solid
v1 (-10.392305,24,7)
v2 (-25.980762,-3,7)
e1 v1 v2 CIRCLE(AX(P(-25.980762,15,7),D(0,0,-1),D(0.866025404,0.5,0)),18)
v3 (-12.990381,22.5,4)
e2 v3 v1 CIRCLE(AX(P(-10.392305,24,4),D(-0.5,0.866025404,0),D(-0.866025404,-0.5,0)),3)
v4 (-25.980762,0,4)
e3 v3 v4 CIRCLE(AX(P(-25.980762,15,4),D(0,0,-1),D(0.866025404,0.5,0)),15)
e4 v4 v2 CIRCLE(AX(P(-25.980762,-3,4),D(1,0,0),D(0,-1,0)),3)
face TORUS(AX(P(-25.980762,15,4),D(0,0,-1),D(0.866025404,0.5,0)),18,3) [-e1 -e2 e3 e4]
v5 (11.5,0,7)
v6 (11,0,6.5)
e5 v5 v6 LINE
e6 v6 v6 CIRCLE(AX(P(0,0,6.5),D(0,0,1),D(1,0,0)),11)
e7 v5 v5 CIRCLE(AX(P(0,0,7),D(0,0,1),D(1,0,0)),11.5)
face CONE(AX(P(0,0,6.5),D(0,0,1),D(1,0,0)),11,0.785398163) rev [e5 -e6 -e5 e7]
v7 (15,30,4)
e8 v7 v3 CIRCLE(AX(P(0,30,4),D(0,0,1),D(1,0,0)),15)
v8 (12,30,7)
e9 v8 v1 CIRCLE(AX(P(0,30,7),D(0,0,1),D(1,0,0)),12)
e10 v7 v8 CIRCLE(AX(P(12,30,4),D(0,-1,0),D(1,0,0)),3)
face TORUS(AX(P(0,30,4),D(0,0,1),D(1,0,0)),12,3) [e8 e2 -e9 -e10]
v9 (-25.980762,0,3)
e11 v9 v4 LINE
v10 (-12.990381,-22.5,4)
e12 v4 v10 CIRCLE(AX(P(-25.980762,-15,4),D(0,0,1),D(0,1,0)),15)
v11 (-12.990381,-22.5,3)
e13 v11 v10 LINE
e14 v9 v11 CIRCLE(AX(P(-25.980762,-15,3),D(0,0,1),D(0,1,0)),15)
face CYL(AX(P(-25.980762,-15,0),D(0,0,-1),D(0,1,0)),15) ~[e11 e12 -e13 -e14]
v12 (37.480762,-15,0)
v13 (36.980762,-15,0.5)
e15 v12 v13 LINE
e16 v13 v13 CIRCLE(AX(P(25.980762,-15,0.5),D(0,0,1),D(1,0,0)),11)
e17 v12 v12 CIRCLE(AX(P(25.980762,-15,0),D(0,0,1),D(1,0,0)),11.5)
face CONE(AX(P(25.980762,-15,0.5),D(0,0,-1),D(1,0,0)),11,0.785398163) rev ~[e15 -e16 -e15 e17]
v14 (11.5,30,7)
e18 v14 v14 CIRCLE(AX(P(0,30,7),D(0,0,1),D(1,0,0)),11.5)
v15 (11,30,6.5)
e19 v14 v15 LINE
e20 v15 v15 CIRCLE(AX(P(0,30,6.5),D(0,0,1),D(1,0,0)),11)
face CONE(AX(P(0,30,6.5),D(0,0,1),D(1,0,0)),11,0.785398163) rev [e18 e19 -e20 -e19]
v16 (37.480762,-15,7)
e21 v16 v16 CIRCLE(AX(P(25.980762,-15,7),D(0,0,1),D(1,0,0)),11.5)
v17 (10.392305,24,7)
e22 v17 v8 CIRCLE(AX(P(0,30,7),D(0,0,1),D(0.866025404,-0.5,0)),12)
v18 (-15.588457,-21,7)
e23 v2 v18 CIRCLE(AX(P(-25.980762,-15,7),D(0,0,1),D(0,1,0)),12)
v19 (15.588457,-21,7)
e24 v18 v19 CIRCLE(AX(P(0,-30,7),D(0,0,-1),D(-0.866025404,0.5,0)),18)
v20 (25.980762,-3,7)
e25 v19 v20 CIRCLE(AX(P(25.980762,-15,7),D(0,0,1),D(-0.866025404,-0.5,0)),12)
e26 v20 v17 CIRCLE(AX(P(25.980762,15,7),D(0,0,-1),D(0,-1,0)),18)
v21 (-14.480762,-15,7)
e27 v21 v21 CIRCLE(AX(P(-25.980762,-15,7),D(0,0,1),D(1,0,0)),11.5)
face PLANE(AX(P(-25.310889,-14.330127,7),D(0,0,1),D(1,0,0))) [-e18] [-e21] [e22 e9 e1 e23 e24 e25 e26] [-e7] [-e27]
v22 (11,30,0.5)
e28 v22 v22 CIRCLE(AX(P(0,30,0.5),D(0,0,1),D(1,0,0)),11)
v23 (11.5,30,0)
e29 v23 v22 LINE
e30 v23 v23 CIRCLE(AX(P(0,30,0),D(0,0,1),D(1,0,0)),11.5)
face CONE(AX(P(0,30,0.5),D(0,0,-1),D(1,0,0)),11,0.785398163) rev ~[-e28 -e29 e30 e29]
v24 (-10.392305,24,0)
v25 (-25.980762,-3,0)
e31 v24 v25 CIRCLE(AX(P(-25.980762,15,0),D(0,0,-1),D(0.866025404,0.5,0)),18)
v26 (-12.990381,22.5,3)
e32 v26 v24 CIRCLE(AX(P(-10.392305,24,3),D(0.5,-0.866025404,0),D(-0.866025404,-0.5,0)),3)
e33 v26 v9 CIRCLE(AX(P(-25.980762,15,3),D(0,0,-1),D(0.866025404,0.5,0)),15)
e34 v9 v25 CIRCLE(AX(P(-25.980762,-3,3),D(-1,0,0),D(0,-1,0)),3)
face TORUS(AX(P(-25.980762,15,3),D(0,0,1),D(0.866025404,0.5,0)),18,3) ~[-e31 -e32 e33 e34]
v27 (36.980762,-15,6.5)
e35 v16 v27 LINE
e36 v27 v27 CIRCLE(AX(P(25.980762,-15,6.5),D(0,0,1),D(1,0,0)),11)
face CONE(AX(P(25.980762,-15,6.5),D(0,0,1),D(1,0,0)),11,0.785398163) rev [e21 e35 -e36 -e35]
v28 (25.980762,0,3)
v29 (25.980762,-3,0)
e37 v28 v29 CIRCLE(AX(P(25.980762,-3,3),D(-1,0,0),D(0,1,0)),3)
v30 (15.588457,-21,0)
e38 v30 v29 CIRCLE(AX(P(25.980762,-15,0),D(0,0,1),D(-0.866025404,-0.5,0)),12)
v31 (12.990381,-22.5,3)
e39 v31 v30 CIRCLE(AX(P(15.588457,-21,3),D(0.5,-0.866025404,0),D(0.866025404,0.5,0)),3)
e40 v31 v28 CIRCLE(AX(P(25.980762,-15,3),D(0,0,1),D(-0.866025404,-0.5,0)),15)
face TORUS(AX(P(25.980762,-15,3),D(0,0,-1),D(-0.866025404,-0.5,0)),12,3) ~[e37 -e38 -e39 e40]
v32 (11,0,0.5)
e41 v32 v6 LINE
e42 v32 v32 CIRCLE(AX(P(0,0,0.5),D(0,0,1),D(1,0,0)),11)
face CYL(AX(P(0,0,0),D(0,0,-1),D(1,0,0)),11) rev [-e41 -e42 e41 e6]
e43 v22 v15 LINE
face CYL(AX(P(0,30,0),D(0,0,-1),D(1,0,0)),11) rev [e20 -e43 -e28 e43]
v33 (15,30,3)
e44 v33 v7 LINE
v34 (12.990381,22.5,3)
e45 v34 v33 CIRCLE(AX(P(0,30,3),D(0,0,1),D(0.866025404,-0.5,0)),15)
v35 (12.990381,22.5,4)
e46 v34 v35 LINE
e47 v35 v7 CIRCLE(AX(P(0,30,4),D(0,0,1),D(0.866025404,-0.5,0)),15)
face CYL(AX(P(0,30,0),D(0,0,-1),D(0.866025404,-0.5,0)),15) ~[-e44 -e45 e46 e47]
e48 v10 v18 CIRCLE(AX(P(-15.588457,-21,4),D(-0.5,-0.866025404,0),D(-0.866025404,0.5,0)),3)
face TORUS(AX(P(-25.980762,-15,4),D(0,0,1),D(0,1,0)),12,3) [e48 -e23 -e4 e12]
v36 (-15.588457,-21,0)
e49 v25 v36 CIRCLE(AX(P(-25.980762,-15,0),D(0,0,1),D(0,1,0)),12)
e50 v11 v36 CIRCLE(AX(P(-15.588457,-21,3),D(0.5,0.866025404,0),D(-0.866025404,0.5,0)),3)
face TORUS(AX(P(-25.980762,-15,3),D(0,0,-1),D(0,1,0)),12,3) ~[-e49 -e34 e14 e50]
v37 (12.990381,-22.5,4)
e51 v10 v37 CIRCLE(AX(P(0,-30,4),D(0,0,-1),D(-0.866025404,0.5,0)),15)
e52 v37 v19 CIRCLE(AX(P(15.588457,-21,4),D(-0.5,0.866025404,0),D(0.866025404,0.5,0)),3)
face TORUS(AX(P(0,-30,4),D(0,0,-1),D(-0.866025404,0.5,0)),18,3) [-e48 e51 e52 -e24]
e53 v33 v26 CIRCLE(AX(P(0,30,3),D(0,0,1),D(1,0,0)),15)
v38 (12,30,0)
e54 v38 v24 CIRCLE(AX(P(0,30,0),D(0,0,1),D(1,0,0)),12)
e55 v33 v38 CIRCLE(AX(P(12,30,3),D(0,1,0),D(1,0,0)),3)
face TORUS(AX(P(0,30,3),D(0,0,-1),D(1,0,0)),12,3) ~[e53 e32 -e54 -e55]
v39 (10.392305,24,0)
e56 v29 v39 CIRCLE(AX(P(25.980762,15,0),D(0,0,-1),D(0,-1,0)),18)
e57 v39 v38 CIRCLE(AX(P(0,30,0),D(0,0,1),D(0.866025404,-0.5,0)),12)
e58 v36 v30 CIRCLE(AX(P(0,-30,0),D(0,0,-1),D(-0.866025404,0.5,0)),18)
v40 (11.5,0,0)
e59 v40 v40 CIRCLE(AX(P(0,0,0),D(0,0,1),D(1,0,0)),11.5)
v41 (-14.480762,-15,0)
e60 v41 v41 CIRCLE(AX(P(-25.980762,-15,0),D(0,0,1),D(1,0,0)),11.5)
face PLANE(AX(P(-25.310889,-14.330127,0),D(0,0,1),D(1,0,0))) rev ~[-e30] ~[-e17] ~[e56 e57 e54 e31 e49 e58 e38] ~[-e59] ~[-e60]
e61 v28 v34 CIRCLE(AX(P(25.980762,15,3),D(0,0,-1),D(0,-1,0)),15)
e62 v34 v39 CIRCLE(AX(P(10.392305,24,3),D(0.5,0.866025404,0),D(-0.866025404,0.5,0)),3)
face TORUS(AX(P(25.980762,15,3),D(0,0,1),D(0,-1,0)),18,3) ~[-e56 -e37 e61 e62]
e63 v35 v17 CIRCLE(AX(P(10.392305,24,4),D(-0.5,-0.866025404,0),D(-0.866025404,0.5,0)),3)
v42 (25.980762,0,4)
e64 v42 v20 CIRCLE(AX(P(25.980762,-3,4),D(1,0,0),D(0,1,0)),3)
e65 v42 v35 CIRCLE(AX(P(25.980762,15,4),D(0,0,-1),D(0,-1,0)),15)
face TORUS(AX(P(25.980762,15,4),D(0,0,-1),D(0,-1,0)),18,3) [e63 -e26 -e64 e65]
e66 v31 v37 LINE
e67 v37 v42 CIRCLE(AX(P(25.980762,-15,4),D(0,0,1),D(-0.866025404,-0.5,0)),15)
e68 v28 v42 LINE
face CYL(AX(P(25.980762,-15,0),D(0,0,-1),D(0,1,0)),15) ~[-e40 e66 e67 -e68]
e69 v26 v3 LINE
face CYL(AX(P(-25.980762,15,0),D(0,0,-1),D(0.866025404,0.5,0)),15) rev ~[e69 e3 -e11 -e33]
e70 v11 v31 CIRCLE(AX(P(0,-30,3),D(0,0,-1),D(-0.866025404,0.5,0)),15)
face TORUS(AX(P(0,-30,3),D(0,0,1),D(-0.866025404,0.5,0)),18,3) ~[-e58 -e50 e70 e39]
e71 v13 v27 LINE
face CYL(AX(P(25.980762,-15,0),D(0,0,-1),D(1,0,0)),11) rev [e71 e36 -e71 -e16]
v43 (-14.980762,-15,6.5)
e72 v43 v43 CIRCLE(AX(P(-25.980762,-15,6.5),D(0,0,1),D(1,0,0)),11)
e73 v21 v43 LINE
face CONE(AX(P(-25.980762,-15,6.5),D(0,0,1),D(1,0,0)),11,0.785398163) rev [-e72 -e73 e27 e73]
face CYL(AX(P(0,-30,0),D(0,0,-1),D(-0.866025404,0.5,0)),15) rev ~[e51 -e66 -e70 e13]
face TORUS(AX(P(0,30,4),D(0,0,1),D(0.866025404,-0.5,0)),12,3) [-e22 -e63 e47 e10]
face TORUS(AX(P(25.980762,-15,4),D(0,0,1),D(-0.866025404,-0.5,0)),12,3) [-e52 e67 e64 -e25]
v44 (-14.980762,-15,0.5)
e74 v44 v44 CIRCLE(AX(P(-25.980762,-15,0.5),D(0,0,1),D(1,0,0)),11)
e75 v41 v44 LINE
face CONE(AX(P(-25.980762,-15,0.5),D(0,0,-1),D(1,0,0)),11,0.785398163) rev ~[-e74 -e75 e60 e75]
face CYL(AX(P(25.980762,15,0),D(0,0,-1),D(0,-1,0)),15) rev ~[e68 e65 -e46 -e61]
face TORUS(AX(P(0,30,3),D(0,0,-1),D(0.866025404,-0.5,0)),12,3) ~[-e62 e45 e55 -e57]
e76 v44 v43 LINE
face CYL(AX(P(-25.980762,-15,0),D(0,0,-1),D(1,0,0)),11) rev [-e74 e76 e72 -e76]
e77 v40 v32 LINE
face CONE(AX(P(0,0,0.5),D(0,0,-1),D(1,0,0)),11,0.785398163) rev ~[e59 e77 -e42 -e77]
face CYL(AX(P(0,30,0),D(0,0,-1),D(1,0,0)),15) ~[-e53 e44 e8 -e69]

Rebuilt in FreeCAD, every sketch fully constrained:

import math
import FreeCAD as App
import Part
import Sketcher
Q = App.Units.Quantity


def edges_at(feature, points):
    """Names of the edges that pass closest to the given points."""
    edges = feature.Shape.Edges
    near = lambda p: min(range(len(edges)), key=lambda i: edges[i].distToShape(Part.Vertex(*p))[0])
    return sorted({f"Edge{near(p) + 1}" for p in points})

doc = App.newDocument("Part")
params = doc.addObject("Spreadsheet::Sheet", "Params")
for row, (alias, value) in enumerate([
    ("sketch1_diameter", "22 mm"),
    ("sketch1_radius", "15 mm"),
    ("pad1_length", "7 mm"),
    ("fillet_radius", "3 mm"),
    ("chamfer_size", "0.5 mm"),
], start=1):
    params.set(f"A{row}", alias)
    params.set(f"B{row}", "=" + value)
    params.setAlias(f"B{row}", alias)

body = doc.addObject("PartDesign::Body", "Body")

sketch1 = body.newObject("Sketcher::SketchObject", "Sketch")
sketch1.AttachmentSupport = (doc.getObject("XY_Plane"), [""])
sketch1.MapMode = "FlatFace"
sketch1.addGeometry(Part.ArcOfCircle(Part.Circle(App.Vector(-26, -15, 0), App.Vector(0, 0, 1), 15), math.radians(90), math.radians(330)), False)
sketch1.addGeometry(Part.ArcOfCircle(Part.Circle(App.Vector(0, -30, 0), App.Vector(0, 0, 1), 15), math.radians(30), math.radians(150)), False)
sketch1.addGeometry(Part.ArcOfCircle(Part.Circle(App.Vector(26, -15, 0), App.Vector(0, 0, 1), 15), math.radians(-150), math.radians(90)), False)
sketch1.addGeometry(Part.ArcOfCircle(Part.Circle(App.Vector(26, 15, 0), App.Vector(0, 0, 1), 15), math.radians(150), math.radians(270)), False)
sketch1.addGeometry(Part.ArcOfCircle(Part.Circle(App.Vector(0, 30, 0), App.Vector(0, 0, 1), 15), math.radians(-30), math.radians(0)), False)
sketch1.addGeometry(Part.ArcOfCircle(Part.Circle(App.Vector(0, 30, 0), App.Vector(0, 0, 1), 15), math.radians(0), math.radians(210)), False)
sketch1.addGeometry(Part.ArcOfCircle(Part.Circle(App.Vector(-26, 15, 0), App.Vector(0, 0, 1), 15), math.radians(-90), math.radians(30)), False)
sketch1.addGeometry(Part.Circle(App.Vector(-26, -15, 0), App.Vector(0, 0, 1), 11), False)
sketch1.addGeometry(Part.Circle(App.Vector(26, -15, 0), App.Vector(0, 0, 1), 11), False)
sketch1.addGeometry(Part.Circle(App.Vector(0, 0, 0), App.Vector(0, 0, 1), 11), False)
sketch1.addGeometry(Part.Circle(App.Vector(0, 30, 0), App.Vector(0, 0, 1), 11), False)
sketch1.addConstraint(Sketcher.Constraint("Tangent", 0, 2, 1, 2))
sketch1.addConstraint(Sketcher.Constraint("Tangent", 1, 1, 2, 1))
sketch1.addConstraint(Sketcher.Constraint("Tangent", 2, 2, 3, 2))
sketch1.addConstraint(Sketcher.Constraint("Tangent", 3, 1, 4, 1))
sketch1.addConstraint(Sketcher.Constraint("Tangent", 4, 2, 5, 1))
sketch1.addConstraint(Sketcher.Constraint("Tangent", 5, 2, 6, 2))
sketch1.addConstraint(Sketcher.Constraint("Tangent", 6, 1, 0, 1))
sketch1.addConstraint(Sketcher.Constraint("Coincident", 9, 3, -1, 1))
sketch1.addConstraint(Sketcher.Constraint("Coincident", 7, 3, 0, 3))
sketch1.addConstraint(Sketcher.Constraint("Coincident", 8, 3, 2, 3))
sketch1.addConstraint(Sketcher.Constraint("Coincident", 10, 3, 4, 3))
sketch1.addConstraint(Sketcher.Constraint("Equal", 0, 1))
sketch1.addConstraint(Sketcher.Constraint("Equal", 1, 2))
sketch1.addConstraint(Sketcher.Constraint("Equal", 2, 3))
sketch1.addConstraint(Sketcher.Constraint("Equal", 3, 4))
sketch1.addConstraint(Sketcher.Constraint("Equal", 4, 5))
sketch1.addConstraint(Sketcher.Constraint("Equal", 5, 6))
sketch1.addConstraint(Sketcher.Constraint("Equal", 7, 8))
sketch1.addConstraint(Sketcher.Constraint("Equal", 8, 9))
sketch1.addConstraint(Sketcher.Constraint("Equal", 9, 10))
sketch1.addConstraint(Sketcher.Constraint("Symmetric", 0, 3, 3, 3, -1, 1))
sketch1.addConstraint(Sketcher.Constraint("Symmetric", 0, 3, 2, 3, -2))
sketch1.addConstraint(Sketcher.Constraint("PointOnObject", 4, 3, -2))
sketch1.addConstraint(Sketcher.Constraint("Horizontal", 10, 3, 4, 2))
sketch1.addConstraint(Sketcher.Constraint("Diameter", 7, Q("22 mm")))
sketch1.addConstraint(Sketcher.Constraint("Radius", 0, Q("15 mm")))
sketch1.addConstraint(Sketcher.Constraint("DistanceY", 1, 3, -1, 1, Q("30 mm")))
sketch1.setExpression("Constraints[24]", "Params.sketch1_diameter")
sketch1.setExpression("Constraints[25]", "Params.sketch1_radius")
pad1 = body.newObject("PartDesign::Pad", "Pad")
pad1.Profile = sketch1
pad1.setExpression("Length", "Params.pad1_length")
doc.recompute()

fillet = body.newObject("PartDesign::Fillet", "Fillet")
fillet.Base = (pad1, edges_at(pad1, [(0, -15, 7), (-38.971, -22.5, 7), (0, -15, 0)]))
fillet.setExpression("Radius", "Params.fillet_radius")
doc.recompute()

chamfer = body.newObject("PartDesign::Chamfer", "Chamfer")
chamfer.Base = (fillet, edges_at(fillet, [
    (11, 0, 3.5),
    (-11, 0, 0),
    (-11, 0, 7),
    (11, 30, 3.5),
    (-11, 30, 0),
    (-11, 30, 7),
    (36.981, -15, 3.5),
    (14.981, -15, 0),
    (14.981, -15, 7),
    (-14.981, -15, 3.5),
    (-36.981, -15, 0),
    (-36.981, -15, 7),
]))
chamfer.setExpression("Size", "Params.chamfer_size")

doc.recompute()
